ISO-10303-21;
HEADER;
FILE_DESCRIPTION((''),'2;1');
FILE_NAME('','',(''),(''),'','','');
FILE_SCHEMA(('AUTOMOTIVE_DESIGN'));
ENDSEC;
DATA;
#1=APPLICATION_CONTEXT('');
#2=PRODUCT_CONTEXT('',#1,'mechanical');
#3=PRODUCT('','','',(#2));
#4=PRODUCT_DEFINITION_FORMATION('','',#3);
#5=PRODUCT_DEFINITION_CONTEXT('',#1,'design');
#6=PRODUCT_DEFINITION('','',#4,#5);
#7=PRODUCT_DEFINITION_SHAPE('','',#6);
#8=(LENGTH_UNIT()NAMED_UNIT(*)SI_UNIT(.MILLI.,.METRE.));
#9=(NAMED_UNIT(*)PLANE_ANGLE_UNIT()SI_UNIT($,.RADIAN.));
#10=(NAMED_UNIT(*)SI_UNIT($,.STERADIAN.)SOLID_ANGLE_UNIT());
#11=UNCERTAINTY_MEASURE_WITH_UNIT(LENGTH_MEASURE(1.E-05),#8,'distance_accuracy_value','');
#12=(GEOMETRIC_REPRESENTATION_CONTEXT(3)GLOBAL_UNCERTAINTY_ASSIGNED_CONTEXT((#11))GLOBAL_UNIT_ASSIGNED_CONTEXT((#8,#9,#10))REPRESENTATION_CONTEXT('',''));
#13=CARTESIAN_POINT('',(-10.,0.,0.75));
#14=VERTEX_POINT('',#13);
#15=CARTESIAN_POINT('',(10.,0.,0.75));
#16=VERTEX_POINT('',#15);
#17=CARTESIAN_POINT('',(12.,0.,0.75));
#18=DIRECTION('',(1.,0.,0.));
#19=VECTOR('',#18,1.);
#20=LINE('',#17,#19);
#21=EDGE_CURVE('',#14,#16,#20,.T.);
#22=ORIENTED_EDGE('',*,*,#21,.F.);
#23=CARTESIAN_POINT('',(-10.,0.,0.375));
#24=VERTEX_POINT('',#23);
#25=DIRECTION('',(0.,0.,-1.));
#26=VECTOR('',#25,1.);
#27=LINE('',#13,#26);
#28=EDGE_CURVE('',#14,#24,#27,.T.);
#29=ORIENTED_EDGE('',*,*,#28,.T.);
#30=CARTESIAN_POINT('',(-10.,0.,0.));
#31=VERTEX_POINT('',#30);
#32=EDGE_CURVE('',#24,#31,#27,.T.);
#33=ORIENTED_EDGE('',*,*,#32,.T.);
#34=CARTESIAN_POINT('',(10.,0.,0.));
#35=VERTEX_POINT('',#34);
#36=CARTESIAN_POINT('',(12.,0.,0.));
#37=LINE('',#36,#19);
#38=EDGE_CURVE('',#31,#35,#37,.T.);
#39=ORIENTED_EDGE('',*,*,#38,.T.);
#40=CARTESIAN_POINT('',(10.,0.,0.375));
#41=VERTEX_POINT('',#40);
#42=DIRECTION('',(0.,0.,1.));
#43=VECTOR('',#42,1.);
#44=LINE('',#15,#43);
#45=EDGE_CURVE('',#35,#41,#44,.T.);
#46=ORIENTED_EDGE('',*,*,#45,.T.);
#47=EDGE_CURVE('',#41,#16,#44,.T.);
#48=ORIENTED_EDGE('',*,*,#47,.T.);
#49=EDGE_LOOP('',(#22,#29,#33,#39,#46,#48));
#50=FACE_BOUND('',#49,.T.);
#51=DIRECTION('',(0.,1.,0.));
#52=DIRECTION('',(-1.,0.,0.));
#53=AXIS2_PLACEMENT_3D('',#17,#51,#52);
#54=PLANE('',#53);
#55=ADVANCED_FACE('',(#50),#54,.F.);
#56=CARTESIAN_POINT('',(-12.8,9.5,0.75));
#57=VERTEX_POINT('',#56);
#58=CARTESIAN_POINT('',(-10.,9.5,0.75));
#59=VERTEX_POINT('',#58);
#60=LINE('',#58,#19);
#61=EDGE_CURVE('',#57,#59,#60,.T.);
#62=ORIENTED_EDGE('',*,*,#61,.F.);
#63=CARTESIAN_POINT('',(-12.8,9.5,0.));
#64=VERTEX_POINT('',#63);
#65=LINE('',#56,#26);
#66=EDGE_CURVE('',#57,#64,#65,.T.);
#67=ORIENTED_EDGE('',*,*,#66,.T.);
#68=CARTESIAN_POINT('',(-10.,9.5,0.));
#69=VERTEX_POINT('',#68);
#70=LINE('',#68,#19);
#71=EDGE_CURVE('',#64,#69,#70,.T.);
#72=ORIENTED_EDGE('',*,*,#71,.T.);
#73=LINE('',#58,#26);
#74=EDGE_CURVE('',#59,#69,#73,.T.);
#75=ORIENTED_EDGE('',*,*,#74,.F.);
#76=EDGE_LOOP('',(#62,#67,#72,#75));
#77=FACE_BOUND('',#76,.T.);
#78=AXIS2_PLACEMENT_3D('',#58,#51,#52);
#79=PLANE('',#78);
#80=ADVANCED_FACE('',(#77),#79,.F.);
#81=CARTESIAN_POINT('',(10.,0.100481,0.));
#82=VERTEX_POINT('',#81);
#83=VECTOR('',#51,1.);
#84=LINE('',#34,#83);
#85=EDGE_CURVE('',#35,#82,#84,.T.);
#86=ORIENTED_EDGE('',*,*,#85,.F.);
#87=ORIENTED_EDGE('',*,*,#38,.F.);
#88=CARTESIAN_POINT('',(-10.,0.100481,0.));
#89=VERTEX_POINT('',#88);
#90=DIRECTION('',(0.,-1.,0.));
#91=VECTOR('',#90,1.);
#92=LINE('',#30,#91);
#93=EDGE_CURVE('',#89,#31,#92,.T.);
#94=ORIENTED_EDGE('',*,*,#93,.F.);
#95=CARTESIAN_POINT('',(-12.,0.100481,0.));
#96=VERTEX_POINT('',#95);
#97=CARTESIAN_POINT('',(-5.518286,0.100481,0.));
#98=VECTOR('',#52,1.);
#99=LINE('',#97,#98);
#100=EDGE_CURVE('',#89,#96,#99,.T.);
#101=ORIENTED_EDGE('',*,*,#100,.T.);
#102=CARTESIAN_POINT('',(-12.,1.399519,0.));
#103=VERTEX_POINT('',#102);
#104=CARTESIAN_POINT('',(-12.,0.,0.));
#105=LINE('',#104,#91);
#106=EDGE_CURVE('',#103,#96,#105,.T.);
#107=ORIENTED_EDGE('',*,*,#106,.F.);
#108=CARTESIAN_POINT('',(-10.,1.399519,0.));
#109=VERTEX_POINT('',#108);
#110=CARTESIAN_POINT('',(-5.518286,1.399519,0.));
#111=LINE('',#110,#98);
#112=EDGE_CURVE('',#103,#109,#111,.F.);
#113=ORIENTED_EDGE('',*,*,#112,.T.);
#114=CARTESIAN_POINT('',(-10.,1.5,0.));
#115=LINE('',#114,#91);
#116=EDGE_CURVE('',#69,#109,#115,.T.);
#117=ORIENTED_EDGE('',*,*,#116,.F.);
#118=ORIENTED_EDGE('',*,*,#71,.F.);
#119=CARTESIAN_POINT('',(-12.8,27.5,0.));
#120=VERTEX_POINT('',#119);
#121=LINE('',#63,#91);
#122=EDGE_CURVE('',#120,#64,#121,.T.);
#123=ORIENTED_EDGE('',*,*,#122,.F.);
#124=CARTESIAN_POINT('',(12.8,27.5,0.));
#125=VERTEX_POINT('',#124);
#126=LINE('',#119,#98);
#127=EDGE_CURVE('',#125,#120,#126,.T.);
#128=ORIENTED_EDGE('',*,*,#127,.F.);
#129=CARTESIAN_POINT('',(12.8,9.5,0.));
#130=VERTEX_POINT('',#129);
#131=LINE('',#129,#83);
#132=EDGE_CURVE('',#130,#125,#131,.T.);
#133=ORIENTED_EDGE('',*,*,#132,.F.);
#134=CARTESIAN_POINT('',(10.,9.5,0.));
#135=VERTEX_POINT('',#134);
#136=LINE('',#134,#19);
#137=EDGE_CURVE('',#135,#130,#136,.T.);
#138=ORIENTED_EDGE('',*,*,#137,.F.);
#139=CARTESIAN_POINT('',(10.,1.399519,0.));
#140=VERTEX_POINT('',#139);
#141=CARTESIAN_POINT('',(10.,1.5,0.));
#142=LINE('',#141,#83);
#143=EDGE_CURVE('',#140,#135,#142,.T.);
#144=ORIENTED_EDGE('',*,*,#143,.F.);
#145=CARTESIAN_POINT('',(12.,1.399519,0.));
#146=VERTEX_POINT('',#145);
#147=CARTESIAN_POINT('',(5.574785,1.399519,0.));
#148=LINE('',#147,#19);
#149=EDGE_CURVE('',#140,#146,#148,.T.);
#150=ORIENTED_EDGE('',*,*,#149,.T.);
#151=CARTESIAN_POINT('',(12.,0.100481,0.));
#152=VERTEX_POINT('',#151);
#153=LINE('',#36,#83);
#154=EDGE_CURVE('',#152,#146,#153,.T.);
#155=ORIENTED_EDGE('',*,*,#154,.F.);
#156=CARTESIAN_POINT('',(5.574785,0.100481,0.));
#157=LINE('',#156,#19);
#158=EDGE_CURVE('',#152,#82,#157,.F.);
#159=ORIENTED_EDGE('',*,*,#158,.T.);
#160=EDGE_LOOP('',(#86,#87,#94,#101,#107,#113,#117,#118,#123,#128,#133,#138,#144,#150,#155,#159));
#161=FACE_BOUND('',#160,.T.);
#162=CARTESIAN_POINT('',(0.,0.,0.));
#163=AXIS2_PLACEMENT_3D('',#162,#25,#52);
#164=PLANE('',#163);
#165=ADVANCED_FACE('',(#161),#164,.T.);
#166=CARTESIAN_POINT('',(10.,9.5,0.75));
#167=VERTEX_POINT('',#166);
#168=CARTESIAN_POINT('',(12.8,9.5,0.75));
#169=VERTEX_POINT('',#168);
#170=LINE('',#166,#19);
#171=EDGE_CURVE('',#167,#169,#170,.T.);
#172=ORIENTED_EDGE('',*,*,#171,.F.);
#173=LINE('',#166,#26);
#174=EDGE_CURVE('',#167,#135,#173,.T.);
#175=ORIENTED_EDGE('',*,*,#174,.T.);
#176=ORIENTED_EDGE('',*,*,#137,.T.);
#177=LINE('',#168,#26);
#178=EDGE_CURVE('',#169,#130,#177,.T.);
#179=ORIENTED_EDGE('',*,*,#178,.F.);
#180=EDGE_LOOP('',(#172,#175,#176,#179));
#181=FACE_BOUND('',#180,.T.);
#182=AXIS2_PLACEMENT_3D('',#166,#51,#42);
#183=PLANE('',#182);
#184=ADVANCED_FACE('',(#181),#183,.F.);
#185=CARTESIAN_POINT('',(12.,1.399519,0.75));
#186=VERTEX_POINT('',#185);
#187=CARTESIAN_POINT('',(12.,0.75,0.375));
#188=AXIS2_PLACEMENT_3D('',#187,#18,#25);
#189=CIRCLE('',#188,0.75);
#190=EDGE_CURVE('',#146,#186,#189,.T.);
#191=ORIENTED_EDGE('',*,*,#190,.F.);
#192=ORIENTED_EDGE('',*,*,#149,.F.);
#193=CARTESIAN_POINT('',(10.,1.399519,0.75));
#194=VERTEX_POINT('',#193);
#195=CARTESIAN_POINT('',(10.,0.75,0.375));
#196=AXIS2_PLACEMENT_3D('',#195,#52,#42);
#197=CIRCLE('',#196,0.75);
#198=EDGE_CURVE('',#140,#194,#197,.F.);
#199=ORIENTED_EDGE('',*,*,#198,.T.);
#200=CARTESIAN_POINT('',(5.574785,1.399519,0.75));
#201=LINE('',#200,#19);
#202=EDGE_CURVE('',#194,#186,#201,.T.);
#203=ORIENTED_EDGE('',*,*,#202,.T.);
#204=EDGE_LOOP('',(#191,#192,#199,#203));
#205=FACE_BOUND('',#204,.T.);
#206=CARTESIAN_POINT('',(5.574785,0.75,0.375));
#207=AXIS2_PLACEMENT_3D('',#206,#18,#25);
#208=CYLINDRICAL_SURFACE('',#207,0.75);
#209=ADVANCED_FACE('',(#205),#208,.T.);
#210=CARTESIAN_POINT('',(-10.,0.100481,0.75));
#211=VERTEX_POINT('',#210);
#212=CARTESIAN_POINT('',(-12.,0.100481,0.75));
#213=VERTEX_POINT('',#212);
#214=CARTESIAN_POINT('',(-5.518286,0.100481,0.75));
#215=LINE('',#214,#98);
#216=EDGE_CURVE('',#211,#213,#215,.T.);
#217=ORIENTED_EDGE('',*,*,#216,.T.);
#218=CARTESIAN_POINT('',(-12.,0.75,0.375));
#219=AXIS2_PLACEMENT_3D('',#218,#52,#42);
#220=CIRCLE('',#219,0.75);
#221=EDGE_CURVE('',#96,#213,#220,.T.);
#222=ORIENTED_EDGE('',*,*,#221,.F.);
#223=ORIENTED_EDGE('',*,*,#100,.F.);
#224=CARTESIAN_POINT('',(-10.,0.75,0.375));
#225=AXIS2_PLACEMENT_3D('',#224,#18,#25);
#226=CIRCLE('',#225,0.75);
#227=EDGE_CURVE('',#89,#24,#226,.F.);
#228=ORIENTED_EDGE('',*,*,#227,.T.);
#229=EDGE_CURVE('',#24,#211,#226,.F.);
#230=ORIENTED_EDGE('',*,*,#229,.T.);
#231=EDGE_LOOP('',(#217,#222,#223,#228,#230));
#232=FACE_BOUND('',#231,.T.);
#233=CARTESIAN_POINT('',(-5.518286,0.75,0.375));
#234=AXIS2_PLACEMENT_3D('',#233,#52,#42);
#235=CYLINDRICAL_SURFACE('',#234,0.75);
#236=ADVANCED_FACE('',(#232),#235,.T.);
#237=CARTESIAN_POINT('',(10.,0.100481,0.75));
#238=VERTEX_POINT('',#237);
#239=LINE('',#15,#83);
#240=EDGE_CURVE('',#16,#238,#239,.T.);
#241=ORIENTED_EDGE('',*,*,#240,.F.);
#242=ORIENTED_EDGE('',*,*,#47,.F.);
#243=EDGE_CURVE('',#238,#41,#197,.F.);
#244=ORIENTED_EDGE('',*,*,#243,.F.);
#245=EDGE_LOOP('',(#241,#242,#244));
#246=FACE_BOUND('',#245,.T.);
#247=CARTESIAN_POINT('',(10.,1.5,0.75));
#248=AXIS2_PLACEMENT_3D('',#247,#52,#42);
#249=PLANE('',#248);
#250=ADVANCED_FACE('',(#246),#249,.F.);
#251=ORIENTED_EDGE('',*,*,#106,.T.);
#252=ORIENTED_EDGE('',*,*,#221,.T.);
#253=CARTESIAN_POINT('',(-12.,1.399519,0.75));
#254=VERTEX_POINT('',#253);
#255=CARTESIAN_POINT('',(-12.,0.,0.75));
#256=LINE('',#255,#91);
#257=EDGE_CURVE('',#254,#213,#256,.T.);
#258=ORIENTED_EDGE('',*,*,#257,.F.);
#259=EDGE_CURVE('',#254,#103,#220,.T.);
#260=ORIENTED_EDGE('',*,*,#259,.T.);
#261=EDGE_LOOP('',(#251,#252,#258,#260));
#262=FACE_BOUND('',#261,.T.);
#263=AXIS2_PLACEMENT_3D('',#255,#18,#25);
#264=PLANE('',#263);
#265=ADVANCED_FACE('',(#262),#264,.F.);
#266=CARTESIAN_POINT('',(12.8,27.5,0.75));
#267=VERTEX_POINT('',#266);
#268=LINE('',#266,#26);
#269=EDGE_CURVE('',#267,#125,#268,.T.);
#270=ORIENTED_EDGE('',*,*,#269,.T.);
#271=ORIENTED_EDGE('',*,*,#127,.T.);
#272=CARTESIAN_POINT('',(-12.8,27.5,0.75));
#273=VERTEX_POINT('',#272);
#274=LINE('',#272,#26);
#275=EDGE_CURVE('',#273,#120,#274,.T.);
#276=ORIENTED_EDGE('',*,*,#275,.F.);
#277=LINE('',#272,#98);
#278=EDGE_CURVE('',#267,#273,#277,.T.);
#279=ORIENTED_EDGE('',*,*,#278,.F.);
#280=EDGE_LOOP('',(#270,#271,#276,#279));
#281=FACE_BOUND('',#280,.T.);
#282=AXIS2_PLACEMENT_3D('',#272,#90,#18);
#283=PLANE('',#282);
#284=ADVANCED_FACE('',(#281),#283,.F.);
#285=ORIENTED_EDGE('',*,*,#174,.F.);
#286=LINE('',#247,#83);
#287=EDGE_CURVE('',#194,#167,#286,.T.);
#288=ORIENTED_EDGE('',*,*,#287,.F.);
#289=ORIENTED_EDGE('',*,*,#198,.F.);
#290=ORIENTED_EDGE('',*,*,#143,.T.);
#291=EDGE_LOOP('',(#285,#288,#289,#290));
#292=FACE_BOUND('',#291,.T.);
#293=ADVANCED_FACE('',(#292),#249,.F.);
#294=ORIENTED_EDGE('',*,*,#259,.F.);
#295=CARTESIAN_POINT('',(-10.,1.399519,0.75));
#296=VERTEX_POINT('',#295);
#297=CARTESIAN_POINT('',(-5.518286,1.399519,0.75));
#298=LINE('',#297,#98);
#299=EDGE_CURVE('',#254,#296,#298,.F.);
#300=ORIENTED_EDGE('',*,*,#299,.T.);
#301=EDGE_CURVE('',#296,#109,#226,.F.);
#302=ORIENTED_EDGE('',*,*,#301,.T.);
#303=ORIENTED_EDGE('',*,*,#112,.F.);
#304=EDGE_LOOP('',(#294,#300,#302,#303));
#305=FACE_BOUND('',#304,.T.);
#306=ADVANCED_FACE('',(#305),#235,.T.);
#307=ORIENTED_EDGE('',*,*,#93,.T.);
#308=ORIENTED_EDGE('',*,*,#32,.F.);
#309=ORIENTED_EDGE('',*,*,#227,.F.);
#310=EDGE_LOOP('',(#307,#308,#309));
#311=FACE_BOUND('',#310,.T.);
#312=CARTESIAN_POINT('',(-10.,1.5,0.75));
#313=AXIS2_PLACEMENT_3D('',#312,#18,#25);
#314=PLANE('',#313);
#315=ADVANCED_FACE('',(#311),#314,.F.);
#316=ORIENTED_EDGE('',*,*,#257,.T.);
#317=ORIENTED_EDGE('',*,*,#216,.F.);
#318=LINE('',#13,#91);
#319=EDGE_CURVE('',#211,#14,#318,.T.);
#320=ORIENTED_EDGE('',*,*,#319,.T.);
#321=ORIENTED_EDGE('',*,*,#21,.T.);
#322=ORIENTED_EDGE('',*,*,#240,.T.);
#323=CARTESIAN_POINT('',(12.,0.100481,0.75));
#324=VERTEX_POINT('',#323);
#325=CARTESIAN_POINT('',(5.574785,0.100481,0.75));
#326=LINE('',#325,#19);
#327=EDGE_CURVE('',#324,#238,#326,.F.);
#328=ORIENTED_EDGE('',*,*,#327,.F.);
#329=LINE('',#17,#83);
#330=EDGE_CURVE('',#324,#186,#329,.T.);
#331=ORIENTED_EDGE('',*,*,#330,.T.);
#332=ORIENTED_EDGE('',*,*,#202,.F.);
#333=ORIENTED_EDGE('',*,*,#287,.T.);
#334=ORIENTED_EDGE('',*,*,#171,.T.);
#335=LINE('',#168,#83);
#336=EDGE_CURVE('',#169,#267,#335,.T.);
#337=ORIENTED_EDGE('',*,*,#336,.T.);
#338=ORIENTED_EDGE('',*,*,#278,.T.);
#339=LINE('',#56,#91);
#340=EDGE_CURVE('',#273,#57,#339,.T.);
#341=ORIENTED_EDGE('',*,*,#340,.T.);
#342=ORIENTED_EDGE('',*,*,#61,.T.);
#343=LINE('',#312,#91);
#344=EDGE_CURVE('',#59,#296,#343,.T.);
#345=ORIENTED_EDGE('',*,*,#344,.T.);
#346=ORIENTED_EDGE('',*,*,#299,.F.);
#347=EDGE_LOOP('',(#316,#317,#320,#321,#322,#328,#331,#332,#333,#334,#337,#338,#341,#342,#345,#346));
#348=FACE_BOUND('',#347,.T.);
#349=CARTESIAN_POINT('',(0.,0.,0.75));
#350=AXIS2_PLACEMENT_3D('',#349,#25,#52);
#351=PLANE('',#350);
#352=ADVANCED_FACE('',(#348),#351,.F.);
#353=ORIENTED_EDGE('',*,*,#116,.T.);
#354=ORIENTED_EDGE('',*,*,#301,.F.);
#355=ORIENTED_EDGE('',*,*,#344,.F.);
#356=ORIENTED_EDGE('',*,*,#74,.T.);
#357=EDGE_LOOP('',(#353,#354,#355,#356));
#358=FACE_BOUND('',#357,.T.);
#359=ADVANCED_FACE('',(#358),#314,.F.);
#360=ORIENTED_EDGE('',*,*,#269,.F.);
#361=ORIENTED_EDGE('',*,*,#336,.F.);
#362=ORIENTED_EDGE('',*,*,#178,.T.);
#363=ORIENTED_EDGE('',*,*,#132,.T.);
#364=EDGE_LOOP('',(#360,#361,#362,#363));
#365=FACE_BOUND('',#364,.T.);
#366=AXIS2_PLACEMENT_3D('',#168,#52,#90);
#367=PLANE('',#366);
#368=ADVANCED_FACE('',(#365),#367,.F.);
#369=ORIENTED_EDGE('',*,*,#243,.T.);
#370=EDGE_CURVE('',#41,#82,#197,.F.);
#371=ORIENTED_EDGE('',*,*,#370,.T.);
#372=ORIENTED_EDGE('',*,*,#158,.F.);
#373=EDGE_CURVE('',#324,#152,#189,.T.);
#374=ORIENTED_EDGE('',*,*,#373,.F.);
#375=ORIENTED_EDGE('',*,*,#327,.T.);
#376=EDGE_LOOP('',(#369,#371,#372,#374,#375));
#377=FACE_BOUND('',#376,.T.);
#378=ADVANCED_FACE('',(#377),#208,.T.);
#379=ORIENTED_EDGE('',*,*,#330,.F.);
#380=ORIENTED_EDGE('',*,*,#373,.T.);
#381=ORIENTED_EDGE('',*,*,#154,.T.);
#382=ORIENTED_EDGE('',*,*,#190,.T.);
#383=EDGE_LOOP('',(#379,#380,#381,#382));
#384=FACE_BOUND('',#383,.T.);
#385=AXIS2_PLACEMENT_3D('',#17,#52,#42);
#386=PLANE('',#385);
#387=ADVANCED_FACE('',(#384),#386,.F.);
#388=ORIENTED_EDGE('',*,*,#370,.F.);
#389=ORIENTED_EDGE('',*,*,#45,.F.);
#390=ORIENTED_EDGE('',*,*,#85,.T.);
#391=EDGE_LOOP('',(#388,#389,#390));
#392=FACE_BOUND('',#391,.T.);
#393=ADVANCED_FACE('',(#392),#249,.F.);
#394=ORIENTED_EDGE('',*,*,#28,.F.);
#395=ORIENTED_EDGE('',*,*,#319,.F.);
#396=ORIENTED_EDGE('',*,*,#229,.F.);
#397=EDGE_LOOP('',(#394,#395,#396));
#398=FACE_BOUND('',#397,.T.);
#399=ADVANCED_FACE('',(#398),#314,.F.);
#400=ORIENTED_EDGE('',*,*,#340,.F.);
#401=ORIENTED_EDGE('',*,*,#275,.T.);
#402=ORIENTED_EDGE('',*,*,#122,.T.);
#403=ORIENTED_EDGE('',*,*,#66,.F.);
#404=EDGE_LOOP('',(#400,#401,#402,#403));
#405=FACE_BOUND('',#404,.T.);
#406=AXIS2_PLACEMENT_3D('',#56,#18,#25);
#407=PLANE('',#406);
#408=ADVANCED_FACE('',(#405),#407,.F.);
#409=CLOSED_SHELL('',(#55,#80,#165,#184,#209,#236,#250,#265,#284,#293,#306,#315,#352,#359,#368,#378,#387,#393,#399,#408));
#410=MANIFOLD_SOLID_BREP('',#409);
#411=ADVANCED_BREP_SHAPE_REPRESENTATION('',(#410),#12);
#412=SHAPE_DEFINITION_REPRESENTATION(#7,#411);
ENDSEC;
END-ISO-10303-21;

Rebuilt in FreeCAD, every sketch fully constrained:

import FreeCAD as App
import Part
import Sketcher
Q = App.Units.Quantity

doc = App.newDocument("Part")
body = doc.addObject("PartDesign::Body", "Body")

# Sketch on XY plane
sketch1 = doc.addObject("Sketcher::SketchObject", "Sketch")
body.addObject(sketch1)
sketch1.AttachmentSupport = (doc.XY_Plane, [""])
sketch1.MapMode = "FlatFace"
sketch1.addGeometry(Part.LineSegment(App.Vector(-12, 0, 0), App.Vector(12, 0, 0)), False)
sketch1.addGeometry(Part.LineSegment(App.Vector(12, 0, 0), App.Vector(12, 1.5, 0)), False)
sketch1.addGeometry(Part.LineSegment(App.Vector(12, 1.5, 0), App.Vector(10, 1.5, 0)), False)
sketch1.addGeometry(Part.LineSegment(App.Vector(10, 1.5, 0), App.Vector(10, 9.5, 0)), False)
sketch1.addGeometry(Part.LineSegment(App.Vector(10, 9.5, 0), App.Vector(12.8, 9.5, 0)), False)
sketch1.addGeometry(Part.LineSegment(App.Vector(12.8, 9.5, 0), App.Vector(12.8, 27.5, 0)), False)
sketch1.addGeometry(Part.LineSegment(App.Vector(12.8, 27.5, 0), App.Vector(-12.8, 27.5, 0)), False)
sketch1.addGeometry(Part.LineSegment(App.Vector(-12.8, 27.5, 0), App.Vector(-12.8, 9.5, 0)), False)
sketch1.addGeometry(Part.LineSegment(App.Vector(-12.8, 9.5, 0), App.Vector(-10, 9.5, 0)), False)
sketch1.addGeometry(Part.LineSegment(App.Vector(-10, 9.5, 0), App.Vector(-10, 1.5, 0)), False)
sketch1.addGeometry(Part.LineSegment(App.Vector(-10, 1.5, 0), App.Vector(-12, 1.5, 0)), False)
sketch1.addGeometry(Part.LineSegment(App.Vector(-12, 1.5, 0), App.Vector(-12, 0, 0)), False)
sketch1.addConstraint(Sketcher.Constraint("Coincident", 0, 2, 1, 1))
sketch1.addConstraint(Sketcher.Constraint("Coincident", 1, 2, 2, 1))
sketch1.addConstraint(Sketcher.Constraint("Coincident", 2, 2, 3, 1))
sketch1.addConstraint(Sketcher.Constraint("Coincident", 3, 2, 4, 1))
sketch1.addConstraint(Sketcher.Constraint("Coincident", 4, 2, 5, 1))
sketch1.addConstraint(Sketcher.Constraint("Coincident", 5, 2, 6, 1))
sketch1.addConstraint(Sketcher.Constraint("Coincident", 6, 2, 7, 1))
sketch1.addConstraint(Sketcher.Constraint("Coincident", 7, 2, 8, 1))
sketch1.addConstraint(Sketcher.Constraint("Coincident", 8, 2, 9, 1))
sketch1.addConstraint(Sketcher.Constraint("Coincident", 9, 2, 10, 1))
sketch1.addConstraint(Sketcher.Constraint("Coincident", 10, 2, 11, 1))
sketch1.addConstraint(Sketcher.Constraint("Coincident", 11, 2, 0, 1))
sketch1.addConstraint(Sketcher.Constraint("Horizontal", 0))
sketch1.addConstraint(Sketcher.Constraint("Vertical", 1))
sketch1.addConstraint(Sketcher.Constraint("Horizontal", 2))
sketch1.addConstraint(Sketcher.Constraint("Vertical", 3))
sketch1.addConstraint(Sketcher.Constraint("Horizontal", 4))
sketch1.addConstraint(Sketcher.Constraint("Vertical", 5))
sketch1.addConstraint(Sketcher.Constraint("Horizontal", 6))
sketch1.addConstraint(Sketcher.Constraint("Vertical", 7))
sketch1.addConstraint(Sketcher.Constraint("Horizontal", 8))
sketch1.addConstraint(Sketcher.Constraint("Vertical", 9))
sketch1.addConstraint(Sketcher.Constraint("Horizontal", 10))
sketch1.addConstraint(Sketcher.Constraint("Vertical", 11))
sketch1.addConstraint(Sketcher.Constraint("Symmetric", 0, 2, 11, 2, -1, 1))
sketch1.addConstraint(Sketcher.Constraint("Symmetric", 4, 2, 7, 2, -2))
sketch1.addConstraint(Sketcher.Constraint("Symmetric", 2, 2, 9, 2, -2))
sketch1.addConstraint(Sketcher.Constraint("DistanceX", 0, 1, 0, 2, Q("24 mm")))
sketch1.addConstraint(Sketcher.Constraint("DistanceX", 2, 2, 2, 1, Q("2 mm")))
sketch1.addConstraint(Sketcher.Constraint("DistanceY", 3, 1, 3, 2, Q("8 mm")))
sketch1.addConstraint(Sketcher.Constraint("DistanceY", 5, 1, 5, 2, Q("18 mm")))
sketch1.addConstraint(Sketcher.Constraint("DistanceX", 4, 1, 4, 2, Q("2.8 mm")))
sketch1.addConstraint(Sketcher.Constraint("DistanceY", 1, 1, 1, 2, Q("1.5 mm")))
pad1 = doc.addObject("PartDesign::Pad", "Pad")
body.addObject(pad1)
pad1.Profile = sketch1
pad1.Length = 0.75

# Sketch on YZ plane
sketch2 = doc.addObject("Sketcher::SketchObject", "Sketch001")
body.addObject(sketch2)
sketch2.AttachmentSupport = (doc.YZ_Plane, [""])
sketch2.MapMode = "FlatFace"
sketch2.AttachmentOffset = App.Placement(App.Vector(0, 0, -12), App.Rotation())
sketch2.addGeometry(Part.Circle(App.Vector(0.8, 0.4, 0), App.Vector(0, 0, 1), 1.6), False)
sketch2.addGeometry(Part.Circle(App.Vector(0.8, 0.4, 0), App.Vector(0, 0, 1), 0.8), False)
sketch2.addConstraint(Sketcher.Constraint("Coincident", 1, 3, 0, 3))
sketch2.addConstraint(Sketcher.Constraint("Diameter", 1, Q("1.5 mm")))
sketch2.addConstraint(Sketcher.Constraint("Diameter", 0, Q("3.169051 mm")))
sketch2.addConstraint(Sketcher.Constraint("DistanceX", -1, 1, 0, 3, Q("0.75 mm")))
sketch2.addConstraint(Sketcher.Constraint("DistanceY", -1, 1, 0, 3, Q("0.375 mm")))
pocket1 = doc.addObject("PartDesign::Pocket", "Pocket")
body.addObject(pocket1)
pocket1.Profile = sketch2
pocket1.Length = 2
pocket1.Reversed = True

# Sketch on YZ plane
sketch3 = doc.addObject("Sketcher::SketchObject", "Sketch002")
body.addObject(sketch3)
sketch3.AttachmentSupport = (doc.YZ_Plane, [""])
sketch3.MapMode = "FlatFace"
sketch3.AttachmentOffset = App.Placement(App.Vector(0, 0, 10), App.Rotation())
sketch3.addGeometry(Part.Circle(App.Vector(0.8, 0.4, 0), App.Vector(0, 0, 1), 1.6), False)
sketch3.addGeometry(Part.Circle(App.Vector(0.8, 0.4, 0), App.Vector(0, 0, 1), 0.8), False)
sketch3.addConstraint(Sketcher.Constraint("Coincident", 1, 3, 0, 3))
sketch3.addConstraint(Sketcher.Constraint("Diameter", 1, Q("1.5 mm")))
sketch3.addConstraint(Sketcher.Constraint("Diameter", 0, Q("3.1291 mm")))
sketch3.addConstraint(Sketcher.Constraint("DistanceX", -1, 1, 0, 3, Q("0.75 mm")))
sketch3.addConstraint(Sketcher.Constraint("DistanceY", -1, 1, 0, 3, Q("0.375 mm")))
pocket2 = doc.addObject("PartDesign::Pocket", "Pocket001")
body.addObject(pocket2)
pocket2.Profile = sketch3
pocket2.Length = 2
pocket2.Reversed = True

doc.recompute()
